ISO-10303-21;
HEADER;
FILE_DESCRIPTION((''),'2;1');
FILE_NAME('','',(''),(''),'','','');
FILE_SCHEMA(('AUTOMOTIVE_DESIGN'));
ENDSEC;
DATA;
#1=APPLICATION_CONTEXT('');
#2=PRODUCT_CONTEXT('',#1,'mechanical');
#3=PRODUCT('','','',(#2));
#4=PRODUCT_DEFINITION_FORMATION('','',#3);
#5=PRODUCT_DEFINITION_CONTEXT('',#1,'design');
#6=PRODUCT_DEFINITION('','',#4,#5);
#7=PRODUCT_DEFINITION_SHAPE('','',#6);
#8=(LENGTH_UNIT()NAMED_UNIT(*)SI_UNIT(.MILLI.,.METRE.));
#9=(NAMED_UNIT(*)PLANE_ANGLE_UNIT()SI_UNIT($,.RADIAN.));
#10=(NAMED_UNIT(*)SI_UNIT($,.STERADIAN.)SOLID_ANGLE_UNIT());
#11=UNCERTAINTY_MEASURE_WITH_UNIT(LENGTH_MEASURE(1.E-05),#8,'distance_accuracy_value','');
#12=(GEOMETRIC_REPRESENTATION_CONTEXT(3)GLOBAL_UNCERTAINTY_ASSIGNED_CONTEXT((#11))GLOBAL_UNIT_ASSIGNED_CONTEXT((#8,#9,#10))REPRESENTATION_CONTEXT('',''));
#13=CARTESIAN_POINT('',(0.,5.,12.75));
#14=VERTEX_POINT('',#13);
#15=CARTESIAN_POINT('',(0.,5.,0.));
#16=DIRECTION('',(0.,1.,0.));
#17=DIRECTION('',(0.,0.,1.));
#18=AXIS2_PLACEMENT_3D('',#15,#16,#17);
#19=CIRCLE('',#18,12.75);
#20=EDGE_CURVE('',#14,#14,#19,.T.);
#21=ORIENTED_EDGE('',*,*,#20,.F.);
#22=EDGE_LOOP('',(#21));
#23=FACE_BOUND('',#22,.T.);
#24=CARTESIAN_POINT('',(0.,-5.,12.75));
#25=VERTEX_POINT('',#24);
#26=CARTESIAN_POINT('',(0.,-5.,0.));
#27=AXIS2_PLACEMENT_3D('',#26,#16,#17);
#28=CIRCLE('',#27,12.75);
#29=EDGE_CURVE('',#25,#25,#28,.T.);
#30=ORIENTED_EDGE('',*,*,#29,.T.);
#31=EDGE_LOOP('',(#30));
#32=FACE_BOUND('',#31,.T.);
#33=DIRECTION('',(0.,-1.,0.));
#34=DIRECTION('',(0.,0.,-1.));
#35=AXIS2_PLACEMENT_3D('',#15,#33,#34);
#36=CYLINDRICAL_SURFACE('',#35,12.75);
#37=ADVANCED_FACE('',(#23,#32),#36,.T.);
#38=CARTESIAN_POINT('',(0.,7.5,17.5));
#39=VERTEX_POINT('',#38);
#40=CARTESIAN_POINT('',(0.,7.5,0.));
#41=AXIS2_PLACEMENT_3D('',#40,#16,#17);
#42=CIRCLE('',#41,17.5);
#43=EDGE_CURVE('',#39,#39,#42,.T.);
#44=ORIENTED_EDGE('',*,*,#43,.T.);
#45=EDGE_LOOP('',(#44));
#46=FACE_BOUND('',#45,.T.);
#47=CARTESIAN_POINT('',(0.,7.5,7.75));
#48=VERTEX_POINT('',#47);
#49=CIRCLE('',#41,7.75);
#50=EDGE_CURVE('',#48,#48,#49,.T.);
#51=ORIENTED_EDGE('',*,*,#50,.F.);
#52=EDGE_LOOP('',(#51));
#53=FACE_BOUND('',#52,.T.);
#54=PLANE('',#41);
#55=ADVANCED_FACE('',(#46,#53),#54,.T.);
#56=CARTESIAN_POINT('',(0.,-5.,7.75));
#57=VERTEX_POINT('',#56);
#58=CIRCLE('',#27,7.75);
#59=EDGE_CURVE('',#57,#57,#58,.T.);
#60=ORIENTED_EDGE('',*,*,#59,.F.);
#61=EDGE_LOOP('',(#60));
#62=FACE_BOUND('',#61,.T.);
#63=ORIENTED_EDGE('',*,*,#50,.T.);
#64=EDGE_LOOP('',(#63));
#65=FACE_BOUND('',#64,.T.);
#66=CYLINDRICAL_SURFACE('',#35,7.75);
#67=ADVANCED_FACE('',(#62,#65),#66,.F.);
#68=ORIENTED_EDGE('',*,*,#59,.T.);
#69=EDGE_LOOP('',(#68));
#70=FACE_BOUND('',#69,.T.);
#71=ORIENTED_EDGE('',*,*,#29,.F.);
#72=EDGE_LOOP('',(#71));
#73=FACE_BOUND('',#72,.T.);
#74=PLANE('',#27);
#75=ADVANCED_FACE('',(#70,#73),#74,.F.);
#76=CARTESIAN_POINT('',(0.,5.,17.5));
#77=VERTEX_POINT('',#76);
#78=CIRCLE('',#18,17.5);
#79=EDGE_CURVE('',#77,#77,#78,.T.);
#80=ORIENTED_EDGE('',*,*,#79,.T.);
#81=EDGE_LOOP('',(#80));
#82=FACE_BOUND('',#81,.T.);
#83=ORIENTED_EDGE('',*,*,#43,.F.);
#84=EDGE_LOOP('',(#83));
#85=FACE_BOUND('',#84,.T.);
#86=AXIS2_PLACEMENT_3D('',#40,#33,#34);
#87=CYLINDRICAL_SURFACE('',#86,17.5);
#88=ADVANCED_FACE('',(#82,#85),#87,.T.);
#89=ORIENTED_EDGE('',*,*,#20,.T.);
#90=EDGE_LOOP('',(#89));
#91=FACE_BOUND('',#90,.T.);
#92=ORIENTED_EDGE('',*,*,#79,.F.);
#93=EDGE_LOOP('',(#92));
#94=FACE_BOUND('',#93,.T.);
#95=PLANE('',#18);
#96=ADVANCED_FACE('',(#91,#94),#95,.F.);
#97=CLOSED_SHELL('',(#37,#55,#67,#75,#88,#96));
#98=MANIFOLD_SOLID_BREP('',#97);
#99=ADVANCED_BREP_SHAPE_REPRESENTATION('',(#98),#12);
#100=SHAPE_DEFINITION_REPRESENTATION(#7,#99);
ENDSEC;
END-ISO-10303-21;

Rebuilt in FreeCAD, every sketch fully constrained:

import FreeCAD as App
import Part
import Sketcher
from FreeCAD import Vector
Q = App.Units.Quantity

doc = App.newDocument("Part")
body = doc.addObject("PartDesign::Body", "Body")

# Sketch on XZ plane
sketch1 = body.newObject("Sketcher::SketchObject", "Sketch")
sketch1.AttachmentSupport = (doc.getObject("XZ_Plane"), [""])
sketch1.MapMode = "FlatFace"
sketch1.addGeometry(Part.Circle(Vector(0, 0, 0), Vector(0, 0, 1), 13), False)
sketch1.addGeometry(Part.Circle(Vector(0, 0, 0), Vector(0, 0, 1), 8), False)
sketch1.addConstraint(Sketcher.Constraint("Coincident", 0, 3, -1, 1))
sketch1.addConstraint(Sketcher.Constraint("Coincident", 1, 3, -1, 1))
sketch1.addConstraint(Sketcher.Constraint("Diameter", 0, Q("25.5 mm")))
sketch1.addConstraint(Sketcher.Constraint("Diameter", 1, Q("15.5 mm")))
pad1 = body.newObject("PartDesign::Pad", "Pad")
pad1.Profile = sketch1
pad1.Length = 10
pad1.Midplane = True

# Sketch on XZ plane
sketch2 = body.newObject("Sketcher::SketchObject", "Sketch001")
sketch2.AttachmentSupport = (doc.getObject("XZ_Plane"), [""])
sketch2.MapMode = "FlatFace"
sketch2.AttachmentOffset = App.Placement(Vector(0, 0, -5), App.Rotation())
sketch2.addGeometry(Part.Circle(Vector(0, 0, 0), Vector(0, 0, 1), 18), False)
sketch2.addGeometry(Part.Circle(Vector(0, 0, 0), Vector(0, 0, 1), 8), False)
sketch2.addConstraint(Sketcher.Constraint("Coincident", 0, 3, -1, 1))
sketch2.addConstraint(Sketcher.Constraint("Coincident", 1, 3, -1, 1))
sketch2.addConstraint(Sketcher.Constraint("Diameter", 0, Q("35 mm")))
sketch2.addConstraint(Sketcher.Constraint("Diameter", 1, Q("15.5 mm")))
pad2 = body.newObject("PartDesign::Pad", "Pad001")
pad2.Profile = sketch2
pad2.Length = 2.5
pad2.Reversed = True

doc.recompute()
